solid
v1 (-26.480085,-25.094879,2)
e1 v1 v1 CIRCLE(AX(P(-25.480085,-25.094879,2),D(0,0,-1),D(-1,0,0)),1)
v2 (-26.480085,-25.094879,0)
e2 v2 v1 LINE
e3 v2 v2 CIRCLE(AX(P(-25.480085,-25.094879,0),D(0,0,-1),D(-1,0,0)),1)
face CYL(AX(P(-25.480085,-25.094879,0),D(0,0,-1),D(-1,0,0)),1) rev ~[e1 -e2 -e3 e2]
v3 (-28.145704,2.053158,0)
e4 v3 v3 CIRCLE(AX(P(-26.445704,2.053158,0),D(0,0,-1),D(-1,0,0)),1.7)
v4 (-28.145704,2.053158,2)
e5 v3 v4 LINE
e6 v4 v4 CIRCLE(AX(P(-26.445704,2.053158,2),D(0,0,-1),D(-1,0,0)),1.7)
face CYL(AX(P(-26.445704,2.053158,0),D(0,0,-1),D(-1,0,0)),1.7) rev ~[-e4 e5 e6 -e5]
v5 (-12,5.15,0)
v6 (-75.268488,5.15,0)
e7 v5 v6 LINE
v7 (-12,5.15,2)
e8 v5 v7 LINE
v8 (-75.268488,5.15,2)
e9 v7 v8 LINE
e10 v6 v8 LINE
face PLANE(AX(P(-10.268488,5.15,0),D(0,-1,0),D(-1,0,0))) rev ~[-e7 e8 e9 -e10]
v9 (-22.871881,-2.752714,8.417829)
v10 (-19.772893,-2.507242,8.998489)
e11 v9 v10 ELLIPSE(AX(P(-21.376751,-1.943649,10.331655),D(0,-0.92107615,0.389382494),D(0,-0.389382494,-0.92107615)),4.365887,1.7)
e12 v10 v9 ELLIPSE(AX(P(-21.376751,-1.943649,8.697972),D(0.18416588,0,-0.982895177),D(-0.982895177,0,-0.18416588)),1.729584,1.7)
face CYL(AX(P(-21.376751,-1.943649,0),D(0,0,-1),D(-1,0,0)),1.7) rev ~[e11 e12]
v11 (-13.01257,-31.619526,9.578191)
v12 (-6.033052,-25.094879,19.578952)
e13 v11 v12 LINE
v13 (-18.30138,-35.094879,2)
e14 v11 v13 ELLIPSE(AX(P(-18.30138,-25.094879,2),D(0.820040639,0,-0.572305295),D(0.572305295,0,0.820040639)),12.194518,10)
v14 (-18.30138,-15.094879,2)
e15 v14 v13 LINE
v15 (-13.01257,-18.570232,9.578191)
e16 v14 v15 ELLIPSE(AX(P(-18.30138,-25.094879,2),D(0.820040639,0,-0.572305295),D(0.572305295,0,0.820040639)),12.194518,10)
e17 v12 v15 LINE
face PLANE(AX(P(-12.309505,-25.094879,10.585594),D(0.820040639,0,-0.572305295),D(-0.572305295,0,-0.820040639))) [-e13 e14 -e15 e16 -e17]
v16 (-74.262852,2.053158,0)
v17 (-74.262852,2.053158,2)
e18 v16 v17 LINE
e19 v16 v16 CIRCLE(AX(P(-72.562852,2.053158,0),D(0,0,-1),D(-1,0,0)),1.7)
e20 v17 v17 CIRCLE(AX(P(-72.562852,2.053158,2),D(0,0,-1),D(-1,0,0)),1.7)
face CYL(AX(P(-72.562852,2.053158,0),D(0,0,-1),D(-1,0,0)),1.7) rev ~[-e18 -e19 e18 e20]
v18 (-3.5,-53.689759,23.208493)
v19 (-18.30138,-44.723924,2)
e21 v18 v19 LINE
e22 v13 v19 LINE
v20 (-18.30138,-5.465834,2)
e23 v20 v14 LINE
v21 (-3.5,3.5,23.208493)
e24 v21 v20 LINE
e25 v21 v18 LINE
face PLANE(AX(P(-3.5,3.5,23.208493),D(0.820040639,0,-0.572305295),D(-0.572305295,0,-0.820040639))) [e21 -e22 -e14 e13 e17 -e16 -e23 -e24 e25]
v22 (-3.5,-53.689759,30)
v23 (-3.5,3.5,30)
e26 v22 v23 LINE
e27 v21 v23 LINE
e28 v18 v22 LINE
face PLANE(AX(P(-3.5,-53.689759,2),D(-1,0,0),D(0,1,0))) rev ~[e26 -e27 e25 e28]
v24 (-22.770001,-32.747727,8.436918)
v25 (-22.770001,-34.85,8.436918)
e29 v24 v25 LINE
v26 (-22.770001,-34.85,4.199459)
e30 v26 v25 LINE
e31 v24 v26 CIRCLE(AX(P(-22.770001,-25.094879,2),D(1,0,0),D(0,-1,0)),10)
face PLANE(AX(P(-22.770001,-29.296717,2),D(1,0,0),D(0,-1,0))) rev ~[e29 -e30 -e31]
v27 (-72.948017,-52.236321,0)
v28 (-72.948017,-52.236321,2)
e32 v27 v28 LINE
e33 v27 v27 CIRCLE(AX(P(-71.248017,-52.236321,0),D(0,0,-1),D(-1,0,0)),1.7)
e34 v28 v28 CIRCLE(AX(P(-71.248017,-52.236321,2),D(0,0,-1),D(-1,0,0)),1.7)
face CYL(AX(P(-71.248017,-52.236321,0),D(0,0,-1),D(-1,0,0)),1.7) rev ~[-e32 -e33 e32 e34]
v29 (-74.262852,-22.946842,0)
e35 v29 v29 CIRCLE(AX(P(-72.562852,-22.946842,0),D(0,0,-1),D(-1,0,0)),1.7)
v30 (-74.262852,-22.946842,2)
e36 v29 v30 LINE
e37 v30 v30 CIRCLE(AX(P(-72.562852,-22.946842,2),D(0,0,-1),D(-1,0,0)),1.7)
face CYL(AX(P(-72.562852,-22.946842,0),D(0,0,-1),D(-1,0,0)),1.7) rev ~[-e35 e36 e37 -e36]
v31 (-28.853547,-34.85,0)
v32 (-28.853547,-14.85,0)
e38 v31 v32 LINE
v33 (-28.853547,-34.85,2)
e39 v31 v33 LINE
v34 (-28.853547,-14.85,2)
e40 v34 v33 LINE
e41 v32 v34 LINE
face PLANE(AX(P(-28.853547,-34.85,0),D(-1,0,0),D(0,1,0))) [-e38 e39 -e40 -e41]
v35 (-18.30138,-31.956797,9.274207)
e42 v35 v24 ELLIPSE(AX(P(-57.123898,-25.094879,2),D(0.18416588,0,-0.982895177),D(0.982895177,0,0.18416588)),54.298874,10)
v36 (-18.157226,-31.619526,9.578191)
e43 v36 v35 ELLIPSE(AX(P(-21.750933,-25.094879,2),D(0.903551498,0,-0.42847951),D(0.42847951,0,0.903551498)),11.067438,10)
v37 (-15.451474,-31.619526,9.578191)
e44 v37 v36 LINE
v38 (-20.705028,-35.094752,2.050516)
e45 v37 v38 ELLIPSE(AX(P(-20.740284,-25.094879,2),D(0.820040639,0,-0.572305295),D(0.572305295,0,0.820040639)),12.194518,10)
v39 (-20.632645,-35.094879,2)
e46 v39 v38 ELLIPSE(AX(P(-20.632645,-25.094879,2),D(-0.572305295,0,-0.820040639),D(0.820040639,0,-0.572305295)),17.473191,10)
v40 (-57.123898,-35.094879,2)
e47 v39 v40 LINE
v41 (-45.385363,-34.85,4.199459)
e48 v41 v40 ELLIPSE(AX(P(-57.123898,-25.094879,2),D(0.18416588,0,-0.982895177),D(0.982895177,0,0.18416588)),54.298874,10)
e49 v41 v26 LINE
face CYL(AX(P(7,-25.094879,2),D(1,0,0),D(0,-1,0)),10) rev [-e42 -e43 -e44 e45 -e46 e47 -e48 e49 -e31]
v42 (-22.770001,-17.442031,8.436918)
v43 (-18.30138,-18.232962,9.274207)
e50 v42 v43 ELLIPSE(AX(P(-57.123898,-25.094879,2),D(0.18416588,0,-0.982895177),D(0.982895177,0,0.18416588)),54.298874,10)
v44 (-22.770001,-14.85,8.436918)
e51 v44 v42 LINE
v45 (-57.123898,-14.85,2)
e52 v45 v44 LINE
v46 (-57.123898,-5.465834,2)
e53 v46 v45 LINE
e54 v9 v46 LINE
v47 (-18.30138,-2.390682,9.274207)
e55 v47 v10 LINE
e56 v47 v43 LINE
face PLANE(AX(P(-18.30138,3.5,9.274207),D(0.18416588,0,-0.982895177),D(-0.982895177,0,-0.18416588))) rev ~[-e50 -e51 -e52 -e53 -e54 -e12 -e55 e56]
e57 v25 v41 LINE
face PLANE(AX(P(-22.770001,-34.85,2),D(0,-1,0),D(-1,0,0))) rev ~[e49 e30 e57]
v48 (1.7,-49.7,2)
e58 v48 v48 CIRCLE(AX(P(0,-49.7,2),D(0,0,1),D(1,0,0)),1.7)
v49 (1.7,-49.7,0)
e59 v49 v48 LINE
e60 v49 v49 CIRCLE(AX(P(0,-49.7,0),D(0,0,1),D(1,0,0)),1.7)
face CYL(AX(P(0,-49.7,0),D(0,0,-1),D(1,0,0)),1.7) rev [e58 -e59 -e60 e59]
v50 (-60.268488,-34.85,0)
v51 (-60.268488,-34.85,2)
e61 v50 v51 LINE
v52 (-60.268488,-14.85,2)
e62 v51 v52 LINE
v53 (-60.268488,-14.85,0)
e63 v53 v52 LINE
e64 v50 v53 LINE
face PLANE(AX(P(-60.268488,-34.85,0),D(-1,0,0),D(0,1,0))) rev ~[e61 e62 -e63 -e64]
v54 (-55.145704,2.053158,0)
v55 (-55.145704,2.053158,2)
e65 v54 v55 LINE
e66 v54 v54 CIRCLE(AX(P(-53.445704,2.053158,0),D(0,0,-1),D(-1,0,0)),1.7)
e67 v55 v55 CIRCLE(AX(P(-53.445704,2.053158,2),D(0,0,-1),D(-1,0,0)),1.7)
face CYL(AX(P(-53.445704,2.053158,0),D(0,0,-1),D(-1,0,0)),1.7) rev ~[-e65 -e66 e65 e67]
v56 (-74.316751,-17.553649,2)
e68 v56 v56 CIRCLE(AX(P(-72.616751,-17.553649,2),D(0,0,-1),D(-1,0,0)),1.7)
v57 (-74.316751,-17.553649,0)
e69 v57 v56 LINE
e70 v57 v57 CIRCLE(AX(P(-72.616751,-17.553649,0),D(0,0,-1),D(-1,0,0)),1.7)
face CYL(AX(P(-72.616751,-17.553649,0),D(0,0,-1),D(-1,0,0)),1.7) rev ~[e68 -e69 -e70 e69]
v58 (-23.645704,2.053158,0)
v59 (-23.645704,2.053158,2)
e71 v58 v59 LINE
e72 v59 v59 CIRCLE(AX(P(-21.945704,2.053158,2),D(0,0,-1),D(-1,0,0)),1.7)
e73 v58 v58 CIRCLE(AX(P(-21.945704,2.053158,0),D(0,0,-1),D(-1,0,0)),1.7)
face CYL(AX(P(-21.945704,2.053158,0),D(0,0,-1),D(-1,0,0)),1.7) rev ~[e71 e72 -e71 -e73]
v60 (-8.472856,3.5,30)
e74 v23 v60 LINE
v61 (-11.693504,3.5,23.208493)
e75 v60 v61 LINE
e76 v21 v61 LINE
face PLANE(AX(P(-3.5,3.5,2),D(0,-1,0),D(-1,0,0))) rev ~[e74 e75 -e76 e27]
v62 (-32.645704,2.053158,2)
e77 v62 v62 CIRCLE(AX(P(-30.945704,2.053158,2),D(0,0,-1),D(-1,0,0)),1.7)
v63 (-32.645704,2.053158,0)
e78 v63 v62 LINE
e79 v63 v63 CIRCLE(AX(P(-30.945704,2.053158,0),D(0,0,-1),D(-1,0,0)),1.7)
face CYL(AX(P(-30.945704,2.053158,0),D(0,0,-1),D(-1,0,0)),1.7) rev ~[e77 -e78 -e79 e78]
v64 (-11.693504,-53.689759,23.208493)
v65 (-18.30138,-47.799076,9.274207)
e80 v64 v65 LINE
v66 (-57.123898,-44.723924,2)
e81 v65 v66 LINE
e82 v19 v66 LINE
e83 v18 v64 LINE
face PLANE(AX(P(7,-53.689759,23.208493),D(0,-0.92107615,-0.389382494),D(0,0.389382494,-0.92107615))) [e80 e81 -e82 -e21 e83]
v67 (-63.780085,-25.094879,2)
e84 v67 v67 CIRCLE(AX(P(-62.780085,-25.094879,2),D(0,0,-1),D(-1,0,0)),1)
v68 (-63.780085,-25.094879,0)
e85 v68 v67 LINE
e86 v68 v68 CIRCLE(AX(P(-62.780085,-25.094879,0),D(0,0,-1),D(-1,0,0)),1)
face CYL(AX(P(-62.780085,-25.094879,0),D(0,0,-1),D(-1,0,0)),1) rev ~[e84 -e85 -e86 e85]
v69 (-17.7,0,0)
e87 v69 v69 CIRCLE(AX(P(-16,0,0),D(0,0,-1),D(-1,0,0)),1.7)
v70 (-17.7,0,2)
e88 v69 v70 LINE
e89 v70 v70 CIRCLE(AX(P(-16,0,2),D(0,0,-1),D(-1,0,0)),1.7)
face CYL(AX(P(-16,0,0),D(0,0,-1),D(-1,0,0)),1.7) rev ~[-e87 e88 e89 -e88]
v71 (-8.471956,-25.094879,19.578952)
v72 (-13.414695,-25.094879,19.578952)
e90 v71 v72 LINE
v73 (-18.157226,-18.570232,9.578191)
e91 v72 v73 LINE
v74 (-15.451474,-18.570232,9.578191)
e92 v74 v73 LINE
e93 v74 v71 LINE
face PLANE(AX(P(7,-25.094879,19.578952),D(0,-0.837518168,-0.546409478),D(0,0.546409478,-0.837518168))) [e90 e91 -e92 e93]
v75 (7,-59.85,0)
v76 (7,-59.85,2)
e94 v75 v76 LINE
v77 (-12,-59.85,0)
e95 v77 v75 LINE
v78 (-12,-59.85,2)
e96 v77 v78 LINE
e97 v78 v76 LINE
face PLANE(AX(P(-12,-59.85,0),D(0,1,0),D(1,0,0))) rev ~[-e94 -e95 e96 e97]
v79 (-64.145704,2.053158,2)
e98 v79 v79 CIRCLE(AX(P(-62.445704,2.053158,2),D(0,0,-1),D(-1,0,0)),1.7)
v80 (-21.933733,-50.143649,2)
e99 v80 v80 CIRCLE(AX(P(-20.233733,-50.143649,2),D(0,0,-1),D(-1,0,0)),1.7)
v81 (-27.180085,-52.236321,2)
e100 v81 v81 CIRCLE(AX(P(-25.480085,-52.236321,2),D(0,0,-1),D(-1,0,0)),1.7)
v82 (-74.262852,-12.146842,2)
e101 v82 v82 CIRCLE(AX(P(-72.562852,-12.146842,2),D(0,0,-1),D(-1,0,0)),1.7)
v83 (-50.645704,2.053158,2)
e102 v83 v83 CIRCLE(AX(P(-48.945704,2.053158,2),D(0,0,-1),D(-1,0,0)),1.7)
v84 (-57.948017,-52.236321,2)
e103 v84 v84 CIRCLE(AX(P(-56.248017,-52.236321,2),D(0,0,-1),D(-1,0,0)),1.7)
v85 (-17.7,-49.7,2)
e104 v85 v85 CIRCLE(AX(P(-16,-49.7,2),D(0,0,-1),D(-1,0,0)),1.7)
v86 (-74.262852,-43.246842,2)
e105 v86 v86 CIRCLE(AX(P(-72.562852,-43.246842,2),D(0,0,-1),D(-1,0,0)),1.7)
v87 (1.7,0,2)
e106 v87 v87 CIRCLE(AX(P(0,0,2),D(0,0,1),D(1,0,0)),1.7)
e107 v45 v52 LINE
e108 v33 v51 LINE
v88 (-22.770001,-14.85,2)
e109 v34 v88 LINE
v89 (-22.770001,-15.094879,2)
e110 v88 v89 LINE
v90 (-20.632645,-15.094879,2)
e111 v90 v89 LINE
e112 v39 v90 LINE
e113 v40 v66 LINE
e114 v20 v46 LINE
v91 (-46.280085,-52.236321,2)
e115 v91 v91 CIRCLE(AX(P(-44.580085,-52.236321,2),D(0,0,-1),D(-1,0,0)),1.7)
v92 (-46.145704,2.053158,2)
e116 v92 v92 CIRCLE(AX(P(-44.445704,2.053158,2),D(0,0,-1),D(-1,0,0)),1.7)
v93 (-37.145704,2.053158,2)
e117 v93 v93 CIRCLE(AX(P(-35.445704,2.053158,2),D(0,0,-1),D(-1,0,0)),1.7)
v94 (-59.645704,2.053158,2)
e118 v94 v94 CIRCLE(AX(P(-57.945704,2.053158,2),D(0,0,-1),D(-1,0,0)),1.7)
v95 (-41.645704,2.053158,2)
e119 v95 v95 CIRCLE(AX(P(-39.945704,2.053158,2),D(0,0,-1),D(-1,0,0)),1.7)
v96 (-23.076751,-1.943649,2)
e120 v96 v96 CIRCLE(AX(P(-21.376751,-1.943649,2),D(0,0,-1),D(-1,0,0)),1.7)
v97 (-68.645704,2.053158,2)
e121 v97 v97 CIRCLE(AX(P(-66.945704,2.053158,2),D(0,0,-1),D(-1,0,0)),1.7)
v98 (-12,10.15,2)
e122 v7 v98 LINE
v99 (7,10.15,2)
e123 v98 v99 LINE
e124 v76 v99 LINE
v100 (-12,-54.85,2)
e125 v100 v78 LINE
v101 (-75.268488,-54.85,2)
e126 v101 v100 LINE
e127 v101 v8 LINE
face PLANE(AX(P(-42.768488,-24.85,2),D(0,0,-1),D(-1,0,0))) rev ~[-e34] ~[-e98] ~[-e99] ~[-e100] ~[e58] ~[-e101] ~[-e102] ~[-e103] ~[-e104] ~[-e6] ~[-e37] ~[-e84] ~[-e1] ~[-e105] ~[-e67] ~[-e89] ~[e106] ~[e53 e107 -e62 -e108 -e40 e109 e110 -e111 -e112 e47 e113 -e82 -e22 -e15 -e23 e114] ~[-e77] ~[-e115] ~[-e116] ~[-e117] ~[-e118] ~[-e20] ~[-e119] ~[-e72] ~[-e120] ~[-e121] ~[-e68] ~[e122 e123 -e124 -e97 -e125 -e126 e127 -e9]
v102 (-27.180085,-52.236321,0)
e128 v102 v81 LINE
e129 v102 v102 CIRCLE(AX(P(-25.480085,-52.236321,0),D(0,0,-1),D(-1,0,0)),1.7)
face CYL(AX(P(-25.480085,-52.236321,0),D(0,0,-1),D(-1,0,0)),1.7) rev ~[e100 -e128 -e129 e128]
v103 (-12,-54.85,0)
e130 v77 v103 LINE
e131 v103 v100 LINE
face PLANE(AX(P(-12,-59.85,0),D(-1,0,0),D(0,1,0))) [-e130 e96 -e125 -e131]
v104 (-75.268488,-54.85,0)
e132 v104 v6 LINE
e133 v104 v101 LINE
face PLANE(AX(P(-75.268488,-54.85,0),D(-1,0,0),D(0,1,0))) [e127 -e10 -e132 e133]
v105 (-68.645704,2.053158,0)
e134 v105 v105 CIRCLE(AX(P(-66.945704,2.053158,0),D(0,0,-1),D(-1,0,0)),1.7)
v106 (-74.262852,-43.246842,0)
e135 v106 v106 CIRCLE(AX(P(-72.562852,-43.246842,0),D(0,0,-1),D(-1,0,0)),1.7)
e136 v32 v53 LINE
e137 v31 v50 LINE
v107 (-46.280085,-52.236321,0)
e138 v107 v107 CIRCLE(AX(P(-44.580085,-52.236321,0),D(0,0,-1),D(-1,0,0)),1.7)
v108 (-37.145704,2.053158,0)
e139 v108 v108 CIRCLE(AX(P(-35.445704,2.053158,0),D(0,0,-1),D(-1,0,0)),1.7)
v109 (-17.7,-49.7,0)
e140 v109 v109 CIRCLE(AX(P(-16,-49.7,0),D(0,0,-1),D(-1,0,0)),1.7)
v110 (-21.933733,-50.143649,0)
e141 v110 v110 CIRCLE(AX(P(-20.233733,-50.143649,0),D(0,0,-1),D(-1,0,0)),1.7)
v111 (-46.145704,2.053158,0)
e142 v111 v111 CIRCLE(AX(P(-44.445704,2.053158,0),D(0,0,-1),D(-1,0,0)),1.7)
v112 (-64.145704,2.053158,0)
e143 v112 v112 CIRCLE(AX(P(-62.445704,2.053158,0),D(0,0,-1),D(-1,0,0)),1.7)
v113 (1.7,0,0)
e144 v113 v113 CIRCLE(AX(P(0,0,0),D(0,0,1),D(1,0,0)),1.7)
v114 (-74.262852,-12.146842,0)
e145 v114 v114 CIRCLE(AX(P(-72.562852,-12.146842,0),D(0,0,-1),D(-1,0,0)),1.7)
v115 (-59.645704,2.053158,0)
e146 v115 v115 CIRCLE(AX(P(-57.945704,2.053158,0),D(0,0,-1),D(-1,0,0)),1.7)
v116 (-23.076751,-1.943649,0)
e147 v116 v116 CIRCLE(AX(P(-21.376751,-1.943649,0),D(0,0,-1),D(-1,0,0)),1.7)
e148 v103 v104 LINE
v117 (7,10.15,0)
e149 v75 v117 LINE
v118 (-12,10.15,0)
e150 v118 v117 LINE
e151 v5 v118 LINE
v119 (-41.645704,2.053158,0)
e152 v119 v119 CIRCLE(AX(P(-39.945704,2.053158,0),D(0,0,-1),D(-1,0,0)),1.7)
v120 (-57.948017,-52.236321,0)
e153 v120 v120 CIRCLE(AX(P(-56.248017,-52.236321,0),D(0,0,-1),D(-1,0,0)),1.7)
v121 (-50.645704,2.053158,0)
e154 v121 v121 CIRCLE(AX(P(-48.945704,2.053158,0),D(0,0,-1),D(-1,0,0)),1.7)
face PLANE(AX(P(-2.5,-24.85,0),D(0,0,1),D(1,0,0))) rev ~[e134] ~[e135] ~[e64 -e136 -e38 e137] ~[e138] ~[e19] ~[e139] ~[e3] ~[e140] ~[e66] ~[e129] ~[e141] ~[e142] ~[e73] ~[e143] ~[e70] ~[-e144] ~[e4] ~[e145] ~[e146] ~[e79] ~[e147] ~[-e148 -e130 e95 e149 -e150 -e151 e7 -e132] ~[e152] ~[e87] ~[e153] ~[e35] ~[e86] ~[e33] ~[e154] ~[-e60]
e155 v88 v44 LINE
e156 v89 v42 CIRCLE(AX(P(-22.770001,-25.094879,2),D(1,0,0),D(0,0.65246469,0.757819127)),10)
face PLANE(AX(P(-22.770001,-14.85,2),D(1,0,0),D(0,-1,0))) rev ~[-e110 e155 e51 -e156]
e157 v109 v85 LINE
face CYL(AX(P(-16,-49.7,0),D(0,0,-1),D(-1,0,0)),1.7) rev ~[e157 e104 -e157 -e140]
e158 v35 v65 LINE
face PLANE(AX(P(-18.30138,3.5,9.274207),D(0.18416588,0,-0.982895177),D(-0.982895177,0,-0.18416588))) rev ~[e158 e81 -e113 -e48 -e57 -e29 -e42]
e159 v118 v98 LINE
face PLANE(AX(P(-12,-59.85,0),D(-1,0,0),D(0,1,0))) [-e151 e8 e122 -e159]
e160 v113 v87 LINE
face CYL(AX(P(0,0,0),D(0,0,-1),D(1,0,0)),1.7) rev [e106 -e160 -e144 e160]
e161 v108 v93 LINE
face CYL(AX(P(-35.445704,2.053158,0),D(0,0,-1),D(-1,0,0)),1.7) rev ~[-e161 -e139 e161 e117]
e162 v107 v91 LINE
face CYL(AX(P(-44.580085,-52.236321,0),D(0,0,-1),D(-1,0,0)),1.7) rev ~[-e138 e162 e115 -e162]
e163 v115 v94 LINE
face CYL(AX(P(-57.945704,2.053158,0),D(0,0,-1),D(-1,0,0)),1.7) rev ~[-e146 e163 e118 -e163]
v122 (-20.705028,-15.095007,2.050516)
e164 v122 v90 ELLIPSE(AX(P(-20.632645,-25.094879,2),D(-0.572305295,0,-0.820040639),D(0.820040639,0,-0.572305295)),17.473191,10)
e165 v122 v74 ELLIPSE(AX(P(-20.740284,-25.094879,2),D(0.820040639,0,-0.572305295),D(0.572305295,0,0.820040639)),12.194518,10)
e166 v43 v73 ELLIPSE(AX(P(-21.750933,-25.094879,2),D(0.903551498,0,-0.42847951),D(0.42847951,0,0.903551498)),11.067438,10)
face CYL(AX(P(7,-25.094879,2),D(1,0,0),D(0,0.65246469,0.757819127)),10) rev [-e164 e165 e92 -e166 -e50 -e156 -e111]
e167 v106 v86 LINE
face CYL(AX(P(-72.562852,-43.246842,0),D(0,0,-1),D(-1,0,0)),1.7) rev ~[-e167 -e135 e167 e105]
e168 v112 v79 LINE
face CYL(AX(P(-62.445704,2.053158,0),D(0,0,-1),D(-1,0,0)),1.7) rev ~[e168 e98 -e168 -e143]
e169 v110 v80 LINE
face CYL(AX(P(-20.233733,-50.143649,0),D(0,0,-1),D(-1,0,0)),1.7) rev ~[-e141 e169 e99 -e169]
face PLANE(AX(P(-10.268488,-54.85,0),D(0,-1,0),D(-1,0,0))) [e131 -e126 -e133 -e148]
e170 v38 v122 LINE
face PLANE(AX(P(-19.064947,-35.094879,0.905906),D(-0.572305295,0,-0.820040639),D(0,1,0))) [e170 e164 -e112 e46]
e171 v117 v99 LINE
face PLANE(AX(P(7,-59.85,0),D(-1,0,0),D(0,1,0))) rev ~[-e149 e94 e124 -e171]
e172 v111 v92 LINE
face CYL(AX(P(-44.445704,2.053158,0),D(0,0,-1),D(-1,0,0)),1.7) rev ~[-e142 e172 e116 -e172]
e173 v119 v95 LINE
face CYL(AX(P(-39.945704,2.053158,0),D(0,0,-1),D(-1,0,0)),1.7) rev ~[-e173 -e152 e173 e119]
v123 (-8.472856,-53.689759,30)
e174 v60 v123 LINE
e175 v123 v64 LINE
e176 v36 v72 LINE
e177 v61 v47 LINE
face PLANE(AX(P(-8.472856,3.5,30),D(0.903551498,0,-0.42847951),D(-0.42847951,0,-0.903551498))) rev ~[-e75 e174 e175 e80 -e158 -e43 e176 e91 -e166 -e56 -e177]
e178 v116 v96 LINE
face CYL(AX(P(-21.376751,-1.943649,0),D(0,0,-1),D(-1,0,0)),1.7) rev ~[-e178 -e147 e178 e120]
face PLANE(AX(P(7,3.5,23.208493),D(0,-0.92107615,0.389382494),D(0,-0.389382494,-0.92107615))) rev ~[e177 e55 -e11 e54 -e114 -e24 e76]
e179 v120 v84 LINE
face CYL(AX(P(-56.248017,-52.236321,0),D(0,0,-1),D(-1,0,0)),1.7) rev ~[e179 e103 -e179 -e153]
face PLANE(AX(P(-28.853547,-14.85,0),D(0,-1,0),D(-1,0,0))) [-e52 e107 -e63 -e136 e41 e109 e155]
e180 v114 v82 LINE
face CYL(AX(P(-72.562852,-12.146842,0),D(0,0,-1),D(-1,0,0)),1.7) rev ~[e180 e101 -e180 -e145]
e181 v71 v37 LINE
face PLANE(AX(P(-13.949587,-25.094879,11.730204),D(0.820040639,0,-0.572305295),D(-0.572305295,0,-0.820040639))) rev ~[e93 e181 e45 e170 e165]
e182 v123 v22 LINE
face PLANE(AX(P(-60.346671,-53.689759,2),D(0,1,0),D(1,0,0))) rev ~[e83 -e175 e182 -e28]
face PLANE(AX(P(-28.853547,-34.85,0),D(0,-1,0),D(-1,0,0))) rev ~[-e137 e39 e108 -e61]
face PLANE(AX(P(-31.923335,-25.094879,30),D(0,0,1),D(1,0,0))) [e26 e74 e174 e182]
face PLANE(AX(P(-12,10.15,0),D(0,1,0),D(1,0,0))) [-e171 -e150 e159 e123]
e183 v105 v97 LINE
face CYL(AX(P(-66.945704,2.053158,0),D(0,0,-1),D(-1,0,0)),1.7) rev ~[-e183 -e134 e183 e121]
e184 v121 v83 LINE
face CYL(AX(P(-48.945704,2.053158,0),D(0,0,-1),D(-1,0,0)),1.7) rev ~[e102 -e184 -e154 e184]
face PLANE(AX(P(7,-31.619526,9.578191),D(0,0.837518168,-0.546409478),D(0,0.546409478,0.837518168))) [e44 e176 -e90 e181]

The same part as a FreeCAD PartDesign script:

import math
import FreeCAD as App
import Part
import Sketcher

V = App.Vector


def add_polygon(sketch, points):
    """Adds a closed chain of lines whose ends are joined by coincident constraints."""
    first, n = sketch.GeometryCount, len(points)
    for a, b in zip(points, points[1:] + points[:1]):
        sketch.addGeometry(Part.LineSegment(App.Vector(*a, 0), App.Vector(*b, 0)), False)
    for i in range(n):
        sketch.addConstraint(Sketcher.Constraint("Coincident", first + i, 2, first + (i + 1) % n, 1))

doc = App.newDocument("Part")
body = doc.addObject("PartDesign::Body", "Body")

sketch1 = doc.addObject("Sketcher::SketchObject", "Sketch")
body.addObject(sketch1)
sketch1.AttachmentSupport = (doc.XY_Plane, [""])
sketch1.MapMode = "FlatFace"
add_polygon(sketch1, [(-12, 10.2), (-12, -59.9), (7, -59.9), (7, 10.2)])
sketch1.addGeometry(Part.Circle(V(0, -49.7, 0), V(0, 0, 1), 1.7), False)
sketch1.addGeometry(Part.Circle(V(0, 0, 0), V(0, 0, 1), 1.7), False)
sketch1.addConstraint(Sketcher.Constraint("Vertical", 0))
sketch1.addConstraint(Sketcher.Constraint("Horizontal", 1))
sketch1.addConstraint(Sketcher.Constraint("Vertical", 2))
sketch1.addConstraint(Sketcher.Constraint("Horizontal", 3))
sketch1.addConstraint(Sketcher.Constraint("Coincident", 5, 3, -1, 1))
sketch1.addConstraint(Sketcher.Constraint("Equal", 4, 5))
sketch1.addConstraint(Sketcher.Constraint("PointOnObject", 4, 3, -2))
sketch1.addConstraint(Sketcher.Constraint("Diameter", 4, 3.4))
sketch1.addConstraint(Sketcher.Constraint("DistanceX", 1, 1, 1, 2, 19.0))
sketch1.addConstraint(Sketcher.Constraint("DistanceY", 0, 2, 0, 1, 70.0))
sketch1.addConstraint(Sketcher.Constraint("DistanceX", 0, 2, -1, 1, 12.0))
sketch1.addConstraint(Sketcher.Constraint("DistanceY", 4, 3, -1, 1, 49.7))
sketch1.addConstraint(Sketcher.Constraint("DistanceY", 0, 2, -1, 1, 59.85))
pad1 = doc.addObject("PartDesign::Pad", "Pad")
body.addObject(pad1)
pad1.Profile = sketch1
pad1.Length = 2

sketch2 = doc.addObject("Sketcher::SketchObject", "Sketch001")
body.addObject(sketch2)
sketch2.AttachmentSupport = (doc.XY_Plane, [""])
sketch2.MapMode = "FlatFace"
add_polygon(sketch2, [(-10, 5), (-10, -55), (-75, -55), (-75, 5)])
sketch2.addConstraint(Sketcher.Constraint("Vertical", 0))
sketch2.addConstraint(Sketcher.Constraint("Horizontal", 1))
sketch2.addConstraint(Sketcher.Constraint("Vertical", 2))
sketch2.addConstraint(Sketcher.Constraint("Horizontal", 3))
sketch2.addConstraint(Sketcher.Constraint("DistanceX", 1, 2, 1, 1, 65.0))
sketch2.addConstraint(Sketcher.Constraint("DistanceY", 0, 2, 0, 1, 60.0))
sketch2.addConstraint(Sketcher.Constraint("DistanceY", 0, 2, -1, 1, 54.85))
sketch2.addConstraint(Sketcher.Constraint("DistanceX", 0, 2, -1, 1, 10.268488))
pad2 = doc.addObject("PartDesign::Pad", "Pad001")
body.addObject(pad2)
pad2.Profile = sketch2
pad2.Length = 2

sketch3 = doc.addObject("Sketcher::SketchObject", "Sketch002")
body.addObject(sketch3)
sketch3.AttachmentSupport = (doc.XY_Plane, [""])
sketch3.MapMode = "FlatFace"
sketch3.addGeometry(Part.Circle(V(-56.2, -52.2, 0), V(0, 0, 1), 1.7), False)
sketch3.addGeometry(Part.Circle(V(-25.5, -25.1, 0), V(0, 0, 1), 1), False)
sketch3.addGeometry(Part.Circle(V(-62.8, -25.1, 0), V(0, 0, 1), 1), False)
sketch3.addGeometry(Part.Circle(V(-71.2, -52.2, 0), V(0, 0, 1), 1.7), False)
sketch3.addGeometry(Part.Circle(V(-21.9, 2.1, 0), V(0, 0, 1), 1.7), False)
sketch3.addGeometry(Part.Circle(V(-26.4, 2.1, 0), V(0, 0, 1), 1.7), False)
sketch3.addGeometry(Part.Circle(V(-30.9, 2.1, 0), V(0, 0, 1), 1.7), False)
sketch3.addGeometry(Part.Circle(V(-35.4, 2.1, 0), V(0, 0, 1), 1.7), False)
sketch3.addGeometry(Part.Circle(V(-72.6, -43.2, 0), V(0, 0, 1), 1.7), False)
sketch3.addGeometry(Part.Circle(V(-72.6, -22.9, 0), V(0, 0, 1), 1.7), False)
sketch3.addGeometry(Part.Circle(V(-72.6, -12.1, 0), V(0, 0, 1), 1.7), False)
sketch3.addGeometry(Part.Circle(V(-72.6, 2.1, 0), V(0, 0, 1), 1.7), False)
sketch3.addGeometry(Part.Circle(V(-25.5, -52.2, 0), V(0, 0, 1), 1.7), False)
sketch3.addGeometry(Part.Circle(V(-44.6, -52.2, 0), V(0, 0, 1), 1.7), False)
sketch3.addGeometry(Part.Circle(V(-39.9, 2.1, 0), V(0, 0, 1), 1.7), False)
sketch3.addGeometry(Part.Circle(V(-44.4, 2.1, 0), V(0, 0, 1), 1.7), False)
sketch3.addGeometry(Part.Circle(V(-48.9, 2.1, 0), V(0, 0, 1), 1.7), False)
sketch3.addGeometry(Part.Circle(V(-53.4, 2.1, 0), V(0, 0, 1), 1.7), False)
sketch3.addGeometry(Part.Circle(V(-57.9, 2.1, 0), V(0, 0, 1), 1.7), False)
sketch3.addGeometry(Part.Circle(V(-62.4, 2.1, 0), V(0, 0, 1), 1.7), False)
sketch3.addGeometry(Part.Circle(V(-66.9, 2.1, 0), V(0, 0, 1), 1.7), False)
sketch3.addConstraint(Sketcher.Constraint("Equal", 1, 2))
sketch3.addConstraint(Sketcher.Constraint("Equal", 0, 3))
sketch3.addConstraint(Sketcher.Constraint("Equal", 3, 4))
sketch3.addConstraint(Sketcher.Constraint("Equal", 4, 5))
sketch3.addConstraint(Sketcher.Constraint("Equal", 5, 6))
sketch3.addConstraint(Sketcher.Constraint("Equal", 6, 7))
sketch3.addConstraint(Sketcher.Constraint("Equal", 7, 8))
sketch3.addConstraint(Sketcher.Constraint("Equal", 8, 9))
sketch3.addConstraint(Sketcher.Constraint("Equal", 9, 10))
sketch3.addConstraint(Sketcher.Constraint("Equal", 10, 11))
sketch3.addConstraint(Sketcher.Constraint("Equal", 11, 12))
sketch3.addConstraint(Sketcher.Constraint("Equal", 12, 13))
sketch3.addConstraint(Sketcher.Constraint("Equal", 13, 14))
sketch3.addConstraint(Sketcher.Constraint("Equal", 14, 15))
sketch3.addConstraint(Sketcher.Constraint("Equal", 15, 16))
sketch3.addConstraint(Sketcher.Constraint("Equal", 16, 17))
sketch3.addConstraint(Sketcher.Constraint("Equal", 17, 18))
sketch3.addConstraint(Sketcher.Constraint("Equal", 18, 19))
sketch3.addConstraint(Sketcher.Constraint("Equal", 19, 20))
sketch3.addConstraint(Sketcher.Constraint("Horizontal", 1, 3, 2, 3))
sketch3.addConstraint(Sketcher.Constraint("Horizontal", 0, 3, 3, 3))
sketch3.addConstraint(Sketcher.Constraint("Horizontal", 4, 3, 5, 3))
sketch3.addConstraint(Sketcher.Constraint("Horizontal", 5, 3, 6, 3))
sketch3.addConstraint(Sketcher.Constraint("Horizontal", 6, 3, 7, 3))
sketch3.addConstraint(Sketcher.Constraint("Horizontal", 7, 3, 11, 3))
sketch3.addConstraint(Sketcher.Constraint("Horizontal", 3, 3, 12, 3))
sketch3.addConstraint(Sketcher.Constraint("Horizontal", 12, 3, 13, 3))
sketch3.addConstraint(Sketcher.Constraint("Horizontal", 11, 3, 14, 3))
sketch3.addConstraint(Sketcher.Constraint("Horizontal", 14, 3, 15, 3))
sketch3.addConstraint(Sketcher.Constraint("Horizontal", 15, 3, 16, 3))
sketch3.addConstraint(Sketcher.Constraint("Horizontal", 16, 3, 17, 3))
sketch3.addConstraint(Sketcher.Constraint("Horizontal", 17, 3, 18, 3))
sketch3.addConstraint(Sketcher.Constraint("Horizontal", 18, 3, 19, 3))
sketch3.addConstraint(Sketcher.Constraint("Horizontal", 19, 3, 20, 3))
sketch3.addConstraint(Sketcher.Constraint("Vertical", 8, 3, 9, 3))
sketch3.addConstraint(Sketcher.Constraint("Vertical", 9, 3, 10, 3))
sketch3.addConstraint(Sketcher.Constraint("Vertical", 10, 3, 11, 3))
sketch3.addConstraint(Sketcher.Constraint("Vertical", 1, 3, 12, 3))
sketch3.addConstraint(Sketcher.Constraint("Diameter", 1, 2.0))
sketch3.addConstraint(Sketcher.Constraint("Diameter", 0, 3.4))
sketch3.addConstraint(Sketcher.Constraint("DistanceX", 3, 3, 0, 3, 15.0))
sketch3.addConstraint(Sketcher.Constraint("DistanceX", 6, 3, 4, 3, 9.0))
sketch3.addConstraint(Sketcher.Constraint("DistanceX", 7, 3, 5, 3, 9.0))
sketch3.addConstraint(Sketcher.Constraint("DistanceY", 9, 3, 7, 3, 25.0))
sketch3.addConstraint(Sketcher.Constraint("DistanceX", 14, 3, 6, 3, 9.0))
sketch3.addConstraint(Sketcher.Constraint("DistanceX", 15, 3, 7, 3, 9.0))
sketch3.addConstraint(Sketcher.Constraint("DistanceX", 16, 3, 14, 3, 9.0))
sketch3.addConstraint(Sketcher.Constraint("DistanceX", 17, 3, 15, 3, 9.0))
sketch3.addConstraint(Sketcher.Constraint("DistanceX", 18, 3, 16, 3, 9.0))
sketch3.addConstraint(Sketcher.Constraint("DistanceX", 19, 3, 17, 3, 9.0))
sketch3.addConstraint(Sketcher.Constraint("DistanceX", 20, 3, 18, 3, 9.0))
sketch3.addConstraint(Sketcher.Constraint("DistanceX", 2, 3, 1, 3, 37.3))
sketch3.addConstraint(Sketcher.Constraint("DistanceX", 5, 3, 4, 3, 4.5))
sketch3.addConstraint(Sketcher.Constraint("DistanceY", 8, 3, 7, 3, 45.3))
sketch3.addConstraint(Sketcher.Constraint("DistanceY", 9, 3, 10, 3, 10.8))
sketch3.addConstraint(Sketcher.Constraint("DistanceX", 13, 3, 12, 3, 19.1))
sketch3.addConstraint(Sketcher.Constraint("DistanceY", 0, 3, -1, 1, 52.236321))
sketch3.addConstraint(Sketcher.Constraint("DistanceY", 1, 3, -1, 1, 25.094879))
sketch3.addConstraint(Sketcher.Constraint("DistanceX", 1, 3, 4, 3, 3.534381))
sketch3.addConstraint(Sketcher.Constraint("DistanceY", 0, 3, 4, 3, 54.289479))
sketch3.addConstraint(Sketcher.Constraint("DistanceX", 8, 3, 7, 3, 37.117148))
sketch3.addConstraint(Sketcher.Constraint("DistanceX", 0, 3, -1, 1, 56.248017))
sketch3.addConstraint(Sketcher.Constraint("DistanceX", 1, 3, -1, 1, 25.480085))
pocket1 = doc.addObject("PartDesign::Pocket", "Pocket")
body.addObject(pocket1)
pocket1.Profile = sketch3
pocket1.Length = 2
pocket1.Reversed = True

sketch4 = doc.addObject("Sketcher::SketchObject", "Sketch003")
body.addObject(sketch4)
sketch4.AttachmentSupport = (doc.XY_Plane, [""])
sketch4.MapMode = "FlatFace"
sketch4.addGeometry(Part.Circle(V(-16, -49.7, 0), V(0, 0, 1), 1.7), False)
sketch4.addGeometry(Part.Circle(V(-16, 0, 0), V(0, 0, 1), 1.7), False)
sketch4.addConstraint(Sketcher.Constraint("Equal", 0, 1))
sketch4.addConstraint(Sketcher.Constraint("PointOnObject", 1, 3, -1))
sketch4.addConstraint(Sketcher.Constraint("Vertical", 0, 3, 1, 3))
sketch4.addConstraint(Sketcher.Constraint("Diameter", 0, 3.4))
sketch4.addConstraint(Sketcher.Constraint("DistanceX", 0, 3, -1, 1, 16.0))
sketch4.addConstraint(Sketcher.Constraint("DistanceY", 0, 3, -1, 1, 49.7))
pocket2 = doc.addObject("PartDesign::Pocket", "Pocket001")
body.addObject(pocket2)
pocket2.Profile = sketch4
pocket2.Length = 2
pocket2.Reversed = True

sketch5 = doc.addObject("Sketcher::SketchObject", "Sketch004")
body.addObject(sketch5)
sketch5.AttachmentSupport = (doc.XY_Plane, [""])
sketch5.MapMode = "FlatFace"
add_polygon(sketch5, [(-29, -15), (-29, -35), (-60, -35), (-60, -15)])
sketch5.addConstraint(Sketcher.Constraint("Vertical", 0))
sketch5.addConstraint(Sketcher.Constraint("Horizontal", 1))
sketch5.addConstraint(Sketcher.Constraint("Vertical", 2))
sketch5.addConstraint(Sketcher.Constraint("Horizontal", 3))
sketch5.addConstraint(Sketcher.Constraint("DistanceY", 0, 2, 0, 1, 20.0))
sketch5.addConstraint(Sketcher.Constraint("DistanceY", 0, 2, -1, 1, 34.85))
sketch5.addConstraint(Sketcher.Constraint("DistanceX", 1, 2, 1, 1, 31.414941))
sketch5.addConstraint(Sketcher.Constraint("DistanceX", 1, 2, -1, 1, 60.268488))
pocket3 = doc.addObject("PartDesign::Pocket", "Pocket002")
body.addObject(pocket3)
pocket3.Profile = sketch5
pocket3.Length = 10
pocket3.Reversed = True

sketch6 = doc.addObject("Sketcher::SketchObject", "Sketch005")
body.addObject(sketch6)
sketch6.AttachmentSupport = (doc.XY_Plane, [""])
sketch6.MapMode = "FlatFace"
sketch6.AttachmentOffset = App.Placement(V(0, 0, 2), App.Rotation())
add_polygon(sketch6, [(-4, -54), (-4, 4), (-60, 4), (-60, -54)])
sketch6.addConstraint(Sketcher.Constraint("Vertical", 0))
sketch6.addConstraint(Sketcher.Constraint("Horizontal", 1))
sketch6.addConstraint(Sketcher.Constraint("Vertical", 2))
sketch6.addConstraint(Sketcher.Constraint("Horizontal", 3))
sketch6.addConstraint(Sketcher.Constraint("DistanceX", 0, 2, -1, 1, 3.5))
sketch6.addConstraint(Sketcher.Constraint("DistanceY", -1, 1, 0, 2, 3.5))
sketch6.addConstraint(Sketcher.Constraint("DistanceX", 1, 2, 1, 1, 56.846671))
sketch6.addConstraint(Sketcher.Constraint("DistanceY", 0, 1, 0, 2, 57.189759))
pad3 = doc.addObject("PartDesign::Pad", "Pad002")
body.addObject(pad3)
pad3.Profile = sketch6
pad3.Length = 28

sketch7 = doc.addObject("Sketcher::SketchObject", "Sketch006")
body.addObject(sketch7)
sketch7.AttachmentSupport = (doc.XZ_Plane, [""])
sketch7.MapMode = "FlatFace"
sketch7.AttachmentOffset = App.Placement(V(0, 0, -3.5), App.Rotation())
add_polygon(sketch7, [(-3.5, 2), (-18.3, 2), (-3.5, 23.2)])
add_polygon(sketch7, [(-8.5, 30), (-18.3, 9.3), (-57.1, 2), (-60.9, 2), (-60.9, 30)])
sketch7.addConstraint(Sketcher.Constraint("Horizontal", 0))
sketch7.addConstraint(Sketcher.Constraint("Vertical", 2))
sketch7.addConstraint(Sketcher.Constraint("Horizontal", 5))
sketch7.addConstraint(Sketcher.Constraint("Vertical", 6))
sketch7.addConstraint(Sketcher.Constraint("Horizontal", 7))
sketch7.addConstraint(Sketcher.Constraint("Horizontal", 2, 2, 4, 2))
sketch7.addConstraint(Sketcher.Constraint("Vertical", 0, 2, 3, 2))
sketch7.addConstraint(Sketcher.Constraint("DistanceY", 6, 1, 6, 2, 28.0))
sketch7.addConstraint(Sketcher.Constraint("DistanceY", -1, 1, 0, 2, 2.0))
sketch7.addConstraint(Sketcher.Constraint("DistanceX", 1, 2, -1, 1, 3.5))
sketch7.addConstraint(Sketcher.Constraint("DistanceX", 0, 2, 0, 1, 14.80138))
sketch7.addConstraint(Sketcher.Constraint("DistanceX", 7, 1, 7, 2, 52.382679))
sketch7.addConstraint(Sketcher.Constraint("DistanceX", 4, 2, -1, 1, 57.123898))
sketch7.addConstraint(Sketcher.Constraint("DistanceX", 5, 2, 5, 1, 3.731636))
sketch7.addConstraint(Sketcher.Constraint("DistanceY", 2, 2, 2, 1, 21.208493))
sketch7.addConstraint(Sketcher.Constraint("Distance", 3, 22.938142))
pocket4 = doc.addObject("PartDesign::Pocket", "Pocket003")
body.addObject(pocket4)
pocket4.Profile = sketch7
pocket4.Length = 60
pocket4.Reversed = True

sketch8 = doc.addObject("Sketcher::SketchObject", "Sketch007")
body.addObject(sketch8)
sketch8.AttachmentSupport = (doc.YZ_Plane, [""])
sketch8.MapMode = "FlatFace"
sketch8.AttachmentOffset = App.Placement(V(0, 0, 7), App.Rotation())
add_polygon(sketch8, [(4, 23), (-5, 2), (4, 2)])
add_polygon(sketch8, [(-54, 2), (-45, 2), (-54, 23)])
sketch8.addConstraint(Sketcher.Constraint("Horizontal", 1))
sketch8.addConstraint(Sketcher.Constraint("Vertical", 2))
sketch8.addConstraint(Sketcher.Constraint("Horizontal", 3))
sketch8.addConstraint(Sketcher.Constraint("Vertical", 5))
sketch8.addConstraint(Sketcher.Constraint("Horizontal", 1, 2, 3, 2))
sketch8.addConstraint(Sketcher.Constraint("Horizontal", 2, 2, 4, 2))
sketch8.addConstraint(Sketcher.Constraint("Equal", 1, 3))
sketch8.addConstraint(Sketcher.Constraint("DistanceY", -1, 1, 0, 2, 2.0))
sketch8.addConstraint(Sketcher.Constraint("DistanceX", -1, 1, 1, 2, 3.5))
sketch8.addConstraint(Sketcher.Constraint("DistanceX", 1, 1, 1, 2, 8.965834))
sketch8.addConstraint(Sketcher.Constraint("DistanceY", 2, 1, 2, 2, 21.208493))
sketch8.addConstraint(Sketcher.Constraint("DistanceX", 4, 2, -1, 1, 53.689759))
pocket5 = doc.addObject("PartDesign::Pocket", "Pocket004")
body.addObject(pocket5)
pocket5.Profile = sketch8
pocket5.Length = 72

sketch9 = doc.addObject("Sketcher::SketchObject", "Sketch008")
body.addObject(sketch9)
sketch9.AttachmentSupport = (doc.YZ_Plane, [""])
sketch9.MapMode = "FlatFace"
sketch9.AttachmentOffset = App.Placement(V(0, 0, 7), App.Rotation())
sketch9.addGeometry(Part.LineSegment(V(-35, 2, 0), V(-15, 2, 0)), False)
sketch9.addGeometry(Part.ArcOfCircle(Part.Circle(V(-25, 2, 0), V(0, 0, 1), 10), math.radians(0), math.radians(49)), False)
sketch9.addGeometry(Part.LineSegment(V(-19, 10, 0), V(-25, 20, 0)), False)
sketch9.addGeometry(Part.LineSegment(V(-25, 20, 0), V(-32, 10, 0)), False)
sketch9.addGeometry(Part.ArcOfCircle(Part.Circle(V(-25, 2, 0), V(0, 0, 1), 10), math.radians(131), math.radians(180)), False)
sketch9.addConstraint(Sketcher.Constraint("Coincident", 0, 2, 1, 1))
sketch9.addConstraint(Sketcher.Constraint("Coincident", 1, 2, 2, 1))
sketch9.addConstraint(Sketcher.Constraint("Coincident", 2, 2, 3, 1))
sketch9.addConstraint(Sketcher.Constraint("Coincident", 3, 2, 4, 1))
sketch9.addConstraint(Sketcher.Constraint("Coincident", 4, 2, 0, 1))
sketch9.addConstraint(Sketcher.Constraint("Horizontal", 0))
sketch9.addConstraint(Sketcher.Constraint("Coincident", 4, 3, 1, 3))
sketch9.addConstraint(Sketcher.Constraint("Equal", 1, 4))
sketch9.addConstraint(Sketcher.Constraint("Horizontal", 4, 3, 0, 2))
sketch9.addConstraint(Sketcher.Constraint("Horizontal", 1, 2, 3, 2))
sketch9.addConstraint(Sketcher.Constraint("Vertical", 4, 3, 2, 2))
sketch9.addConstraint(Sketcher.Constraint("Radius", 1, 10.0))
sketch9.addConstraint(Sketcher.Constraint("DistanceY", -1, 1, 1, 3, 2.0))
sketch9.addConstraint(Sketcher.Constraint("DistanceX", 1, 3, -1, 1, 25.094879))
sketch9.addConstraint(Sketcher.Constraint("DistanceY", -1, 1, 1, 2, 9.578191))
sketch9.addConstraint(Sketcher.Constraint("DistanceY", -1, 1, 2, 2, 19.578952))
pocket6 = doc.addObject("PartDesign::Pocket", "Pocket005")
body.addObject(pocket6)
pocket6.Profile = sketch9
pocket6.Length = 67

sketch10 = doc.addObject("Sketcher::SketchObject", "Sketch009")
body.addObject(sketch10)
sketch10.AttachmentSupport = (doc.XY_Plane, [""])
sketch10.MapMode = "FlatFace"
sketch10.AttachmentOffset = App.Placement(V(0, 0, 2), App.Rotation())
sketch10.addGeometry(Part.LineSegment(V(-23, -15, 0), V(-60, -15, 0)), False)
sketch10.addGeometry(Part.LineSegment(V(-60, -15, 0), V(-60, -35, 0)), False)
sketch10.addGeometry(Part.LineSegment(V(-60, -35, 0), V(-23, -35, 0)), False)
sketch10.addGeometry(Part.LineSegment(V(-23, -35, 0), V(-23, -29, 0)), False)
sketch10.addGeometry(Part.ArcOfCircle(Part.Circle(V(-25, -25, 0), V(0, 0, 1), 5), math.radians(-57), math.radians(57)), False)
sketch10.addGeometry(Part.LineSegment(V(-23, -21, 0), V(-23, -15, 0)), False)
sketch10.addConstraint(Sketcher.Constraint("Coincident", 0, 2, 1, 1))
sketch10.addConstraint(Sketcher.Constraint("Coincident", 1, 2, 2, 1))
sketch10.addConstraint(Sketcher.Constraint("Coincident", 2, 2, 3, 1))
sketch10.addConstraint(Sketcher.Constraint("Coincident", 3, 2, 4, 1))
sketch10.addConstraint(Sketcher.Constraint("Coincident", 4, 2, 5, 1))
sketch10.addConstraint(Sketcher.Constraint("Coincident", 5, 2, 0, 1))
sketch10.addConstraint(Sketcher.Constraint("Horizontal", 0))
sketch10.addConstraint(Sketcher.Constraint("Vertical", 1))
sketch10.addConstraint(Sketcher.Constraint("Horizontal", 2))
sketch10.addConstraint(Sketcher.Constraint("Vertical", 3))
sketch10.addConstraint(Sketcher.Constraint("Vertical", 5))
sketch10.addConstraint(Sketcher.Constraint("Vertical", 3, 2, 4, 2))
sketch10.addConstraint(Sketcher.Constraint("Radius", 4, 5.0))
sketch10.addConstraint(Sketcher.Constraint("DistanceY", 1, 2, 1, 1, 20.0))
sketch10.addConstraint(Sketcher.Constraint("DistanceY", 0, 2, -1, 1, 14.85))
sketch10.addConstraint(Sketcher.Constraint("DistanceX", 2, 2, -1, 1, 22.770001))
sketch10.addConstraint(Sketcher.Constraint("DistanceY", 5, 1, 5, 2, 6.043041))
sketch10.addConstraint(Sketcher.Constraint("DistanceX", 0, 2, 0, 1, 37.498487))
sketch10.addConstraint(Sketcher.Constraint("DistanceY", 3, 1, 3, 2, 5.553283))
pocket7 = doc.addObject("PartDesign::Pocket", "Pocket006")
body.addObject(pocket7)
pocket7.Profile = sketch10
pocket7.Length = 35
pocket7.Reversed = True

sketch11 = doc.addObject("Sketcher::SketchObject", "Sketch010")
body.addObject(sketch11)
sketch11.Placement = App.Placement(V(-13.245695, 0, 9.244153), App.Rotation(V(-0.572305295, 0, -0.820040639), V(0, 1, 0), V(0.820040639, 0, -0.572305295), "ZXY"))
add_polygon(sketch11, [(10, -35), (10, -15), (-13, -15), (-13, -35)])
sketch11.addConstraint(Sketcher.Constraint("Vertical", 0))
sketch11.addConstraint(Sketcher.Constraint("Horizontal", 1))
sketch11.addConstraint(Sketcher.Constraint("Vertical", 2))
sketch11.addConstraint(Sketcher.Constraint("Horizontal", 3))
sketch11.addConstraint(Sketcher.Constraint("DistanceY", 0, 1, 0, 2, 20.0))
sketch11.addConstraint(Sketcher.Constraint("DistanceX", 1, 2, 1, 1, 23.607825))
sketch11.addConstraint(Sketcher.Constraint("DistanceX", -1, 1, 0, 2, 10.168091))
sketch11.addConstraint(Sketcher.Constraint("DistanceY", 0, 2, -1, 1, 15.094879))
pad4 = doc.addObject("PartDesign::Pad", "Pad003")
body.addObject(pad4)
pad4.Profile = sketch11
pad4.Length = 2
pad4.Reversed = True

sketch12 = doc.addObject("Sketcher::SketchObject", "Sketch011")
body.addObject(sketch12)
sketch12.AttachmentSupport = (doc.XY_Plane, [""])
sketch12.MapMode = "FlatFace"
sketch12.addGeometry(Part.Circle(V(-20.2, -50.1, 0), V(0, 0, 1), 1.7), False)
sketch12.addGeometry(Part.Circle(V(-21.4, -1.9, 0), V(0, 0, 1), 1.7), False)
sketch12.addGeometry(Part.Circle(V(-72.6, -17.6, 0), V(0, 0, 1), 1.7), False)
sketch12.addConstraint(Sketcher.Constraint("Equal", 0, 1))
sketch12.addConstraint(Sketcher.Constraint("Equal", 1, 2))
sketch12.addConstraint(Sketcher.Constraint("Diameter", 0, 3.4))
sketch12.addConstraint(Sketcher.Constraint("DistanceY", 0, 3, 1, 3, 48.2))
sketch12.addConstraint(Sketcher.Constraint("DistanceX", 2, 3, 1, 3, 51.24))
sketch12.addConstraint(Sketcher.Constraint("DistanceY", 2, 3, 1, 3, 15.61))
sketch12.addConstraint(Sketcher.Constraint("DistanceY", 0, 3, -1, 1, 50.143649))
sketch12.addConstraint(Sketcher.Constraint("DistanceX", 1, 3, -1, 1, 21.376751))
sketch12.addConstraint(Sketcher.Constraint("DistanceX", 0, 3, -1, 1, 20.233733))
pocket8 = doc.addObject("PartDesign::Pocket", "Pocket007")
body.addObject(pocket8)
pocket8.Profile = sketch12
pocket8.Length = 10
pocket8.Reversed = True

doc.recompute()
